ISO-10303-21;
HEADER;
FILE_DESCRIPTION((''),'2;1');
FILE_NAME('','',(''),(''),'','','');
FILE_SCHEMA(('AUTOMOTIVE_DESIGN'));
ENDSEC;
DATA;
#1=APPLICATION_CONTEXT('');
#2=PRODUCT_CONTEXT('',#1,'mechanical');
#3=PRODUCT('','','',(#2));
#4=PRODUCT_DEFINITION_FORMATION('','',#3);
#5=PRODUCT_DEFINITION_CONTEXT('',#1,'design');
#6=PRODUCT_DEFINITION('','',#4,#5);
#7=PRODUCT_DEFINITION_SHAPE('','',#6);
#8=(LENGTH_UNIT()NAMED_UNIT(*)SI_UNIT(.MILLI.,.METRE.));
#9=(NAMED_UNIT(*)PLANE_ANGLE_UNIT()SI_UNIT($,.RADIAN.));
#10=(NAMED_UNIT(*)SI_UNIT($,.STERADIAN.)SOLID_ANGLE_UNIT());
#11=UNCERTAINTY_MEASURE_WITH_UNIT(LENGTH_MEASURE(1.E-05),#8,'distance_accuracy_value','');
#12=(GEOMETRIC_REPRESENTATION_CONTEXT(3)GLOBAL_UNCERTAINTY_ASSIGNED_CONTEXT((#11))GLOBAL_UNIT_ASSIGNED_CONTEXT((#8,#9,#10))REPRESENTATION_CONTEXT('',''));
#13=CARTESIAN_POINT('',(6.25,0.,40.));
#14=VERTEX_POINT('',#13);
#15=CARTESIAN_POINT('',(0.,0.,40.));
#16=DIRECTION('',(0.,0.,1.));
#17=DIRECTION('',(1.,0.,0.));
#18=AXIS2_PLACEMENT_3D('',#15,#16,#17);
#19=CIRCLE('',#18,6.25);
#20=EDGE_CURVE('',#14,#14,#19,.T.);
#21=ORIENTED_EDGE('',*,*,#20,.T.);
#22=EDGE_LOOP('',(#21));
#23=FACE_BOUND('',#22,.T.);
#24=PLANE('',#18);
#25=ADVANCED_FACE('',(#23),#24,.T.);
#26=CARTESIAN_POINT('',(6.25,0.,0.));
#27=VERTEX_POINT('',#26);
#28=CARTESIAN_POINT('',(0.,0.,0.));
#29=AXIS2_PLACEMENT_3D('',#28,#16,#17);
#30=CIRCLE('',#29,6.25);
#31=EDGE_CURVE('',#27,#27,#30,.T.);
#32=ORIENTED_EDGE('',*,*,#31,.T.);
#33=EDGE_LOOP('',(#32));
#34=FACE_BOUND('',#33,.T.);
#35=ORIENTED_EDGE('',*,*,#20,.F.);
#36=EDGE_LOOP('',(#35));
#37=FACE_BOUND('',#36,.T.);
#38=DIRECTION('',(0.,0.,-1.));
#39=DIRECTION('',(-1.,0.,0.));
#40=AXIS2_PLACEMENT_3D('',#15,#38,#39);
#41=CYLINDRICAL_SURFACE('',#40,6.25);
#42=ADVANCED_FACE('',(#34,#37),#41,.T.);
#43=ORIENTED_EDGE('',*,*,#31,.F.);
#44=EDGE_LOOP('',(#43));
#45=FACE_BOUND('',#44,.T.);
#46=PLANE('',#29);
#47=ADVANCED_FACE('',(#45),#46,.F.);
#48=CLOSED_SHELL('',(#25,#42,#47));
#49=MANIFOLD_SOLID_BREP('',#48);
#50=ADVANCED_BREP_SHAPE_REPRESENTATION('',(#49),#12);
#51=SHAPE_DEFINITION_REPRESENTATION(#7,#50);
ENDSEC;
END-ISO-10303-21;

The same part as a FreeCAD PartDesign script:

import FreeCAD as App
import Part
import Sketcher
from FreeCAD import Vector

doc = App.newDocument("Part")
params = doc.addObject("Spreadsheet::Sheet", "Params")
for row, (alias, value) in enumerate([
    ("sketch1_diameter", "12.5 mm"),
    ("pad1_length", "40 mm"),
], start=1):
    params.set(f"A{row}", alias)
    params.set(f"B{row}", "=" + value)
    params.setAlias(f"B{row}", alias)

body = doc.addObject("PartDesign::Body", "Body")

# Sketch on XY plane
sketch1 = body.newObject("Sketcher::SketchObject", "Sketch")
sketch1.AttachmentSupport = (doc.getObject("XY_Plane"), [""])
sketch1.MapMode = "FlatFace"
sketch1.addGeometry(Part.Circle(Vector(0, 0, 0), Vector(0, 0, 1), 6), False)
sketch1.addConstraint([
    Sketcher.Constraint("Coincident", 0, 3, -1, 1),
    Sketcher.Constraint("Diameter", 0, 12.5),
])
sketch1.setExpression("Constraints[1]", "Params.sketch1_diameter")
pad1 = body.newObject("PartDesign::Pad", "Pad")
pad1.Profile = sketch1
pad1.setExpression("Length", "Params.pad1_length")

doc.recompute()
